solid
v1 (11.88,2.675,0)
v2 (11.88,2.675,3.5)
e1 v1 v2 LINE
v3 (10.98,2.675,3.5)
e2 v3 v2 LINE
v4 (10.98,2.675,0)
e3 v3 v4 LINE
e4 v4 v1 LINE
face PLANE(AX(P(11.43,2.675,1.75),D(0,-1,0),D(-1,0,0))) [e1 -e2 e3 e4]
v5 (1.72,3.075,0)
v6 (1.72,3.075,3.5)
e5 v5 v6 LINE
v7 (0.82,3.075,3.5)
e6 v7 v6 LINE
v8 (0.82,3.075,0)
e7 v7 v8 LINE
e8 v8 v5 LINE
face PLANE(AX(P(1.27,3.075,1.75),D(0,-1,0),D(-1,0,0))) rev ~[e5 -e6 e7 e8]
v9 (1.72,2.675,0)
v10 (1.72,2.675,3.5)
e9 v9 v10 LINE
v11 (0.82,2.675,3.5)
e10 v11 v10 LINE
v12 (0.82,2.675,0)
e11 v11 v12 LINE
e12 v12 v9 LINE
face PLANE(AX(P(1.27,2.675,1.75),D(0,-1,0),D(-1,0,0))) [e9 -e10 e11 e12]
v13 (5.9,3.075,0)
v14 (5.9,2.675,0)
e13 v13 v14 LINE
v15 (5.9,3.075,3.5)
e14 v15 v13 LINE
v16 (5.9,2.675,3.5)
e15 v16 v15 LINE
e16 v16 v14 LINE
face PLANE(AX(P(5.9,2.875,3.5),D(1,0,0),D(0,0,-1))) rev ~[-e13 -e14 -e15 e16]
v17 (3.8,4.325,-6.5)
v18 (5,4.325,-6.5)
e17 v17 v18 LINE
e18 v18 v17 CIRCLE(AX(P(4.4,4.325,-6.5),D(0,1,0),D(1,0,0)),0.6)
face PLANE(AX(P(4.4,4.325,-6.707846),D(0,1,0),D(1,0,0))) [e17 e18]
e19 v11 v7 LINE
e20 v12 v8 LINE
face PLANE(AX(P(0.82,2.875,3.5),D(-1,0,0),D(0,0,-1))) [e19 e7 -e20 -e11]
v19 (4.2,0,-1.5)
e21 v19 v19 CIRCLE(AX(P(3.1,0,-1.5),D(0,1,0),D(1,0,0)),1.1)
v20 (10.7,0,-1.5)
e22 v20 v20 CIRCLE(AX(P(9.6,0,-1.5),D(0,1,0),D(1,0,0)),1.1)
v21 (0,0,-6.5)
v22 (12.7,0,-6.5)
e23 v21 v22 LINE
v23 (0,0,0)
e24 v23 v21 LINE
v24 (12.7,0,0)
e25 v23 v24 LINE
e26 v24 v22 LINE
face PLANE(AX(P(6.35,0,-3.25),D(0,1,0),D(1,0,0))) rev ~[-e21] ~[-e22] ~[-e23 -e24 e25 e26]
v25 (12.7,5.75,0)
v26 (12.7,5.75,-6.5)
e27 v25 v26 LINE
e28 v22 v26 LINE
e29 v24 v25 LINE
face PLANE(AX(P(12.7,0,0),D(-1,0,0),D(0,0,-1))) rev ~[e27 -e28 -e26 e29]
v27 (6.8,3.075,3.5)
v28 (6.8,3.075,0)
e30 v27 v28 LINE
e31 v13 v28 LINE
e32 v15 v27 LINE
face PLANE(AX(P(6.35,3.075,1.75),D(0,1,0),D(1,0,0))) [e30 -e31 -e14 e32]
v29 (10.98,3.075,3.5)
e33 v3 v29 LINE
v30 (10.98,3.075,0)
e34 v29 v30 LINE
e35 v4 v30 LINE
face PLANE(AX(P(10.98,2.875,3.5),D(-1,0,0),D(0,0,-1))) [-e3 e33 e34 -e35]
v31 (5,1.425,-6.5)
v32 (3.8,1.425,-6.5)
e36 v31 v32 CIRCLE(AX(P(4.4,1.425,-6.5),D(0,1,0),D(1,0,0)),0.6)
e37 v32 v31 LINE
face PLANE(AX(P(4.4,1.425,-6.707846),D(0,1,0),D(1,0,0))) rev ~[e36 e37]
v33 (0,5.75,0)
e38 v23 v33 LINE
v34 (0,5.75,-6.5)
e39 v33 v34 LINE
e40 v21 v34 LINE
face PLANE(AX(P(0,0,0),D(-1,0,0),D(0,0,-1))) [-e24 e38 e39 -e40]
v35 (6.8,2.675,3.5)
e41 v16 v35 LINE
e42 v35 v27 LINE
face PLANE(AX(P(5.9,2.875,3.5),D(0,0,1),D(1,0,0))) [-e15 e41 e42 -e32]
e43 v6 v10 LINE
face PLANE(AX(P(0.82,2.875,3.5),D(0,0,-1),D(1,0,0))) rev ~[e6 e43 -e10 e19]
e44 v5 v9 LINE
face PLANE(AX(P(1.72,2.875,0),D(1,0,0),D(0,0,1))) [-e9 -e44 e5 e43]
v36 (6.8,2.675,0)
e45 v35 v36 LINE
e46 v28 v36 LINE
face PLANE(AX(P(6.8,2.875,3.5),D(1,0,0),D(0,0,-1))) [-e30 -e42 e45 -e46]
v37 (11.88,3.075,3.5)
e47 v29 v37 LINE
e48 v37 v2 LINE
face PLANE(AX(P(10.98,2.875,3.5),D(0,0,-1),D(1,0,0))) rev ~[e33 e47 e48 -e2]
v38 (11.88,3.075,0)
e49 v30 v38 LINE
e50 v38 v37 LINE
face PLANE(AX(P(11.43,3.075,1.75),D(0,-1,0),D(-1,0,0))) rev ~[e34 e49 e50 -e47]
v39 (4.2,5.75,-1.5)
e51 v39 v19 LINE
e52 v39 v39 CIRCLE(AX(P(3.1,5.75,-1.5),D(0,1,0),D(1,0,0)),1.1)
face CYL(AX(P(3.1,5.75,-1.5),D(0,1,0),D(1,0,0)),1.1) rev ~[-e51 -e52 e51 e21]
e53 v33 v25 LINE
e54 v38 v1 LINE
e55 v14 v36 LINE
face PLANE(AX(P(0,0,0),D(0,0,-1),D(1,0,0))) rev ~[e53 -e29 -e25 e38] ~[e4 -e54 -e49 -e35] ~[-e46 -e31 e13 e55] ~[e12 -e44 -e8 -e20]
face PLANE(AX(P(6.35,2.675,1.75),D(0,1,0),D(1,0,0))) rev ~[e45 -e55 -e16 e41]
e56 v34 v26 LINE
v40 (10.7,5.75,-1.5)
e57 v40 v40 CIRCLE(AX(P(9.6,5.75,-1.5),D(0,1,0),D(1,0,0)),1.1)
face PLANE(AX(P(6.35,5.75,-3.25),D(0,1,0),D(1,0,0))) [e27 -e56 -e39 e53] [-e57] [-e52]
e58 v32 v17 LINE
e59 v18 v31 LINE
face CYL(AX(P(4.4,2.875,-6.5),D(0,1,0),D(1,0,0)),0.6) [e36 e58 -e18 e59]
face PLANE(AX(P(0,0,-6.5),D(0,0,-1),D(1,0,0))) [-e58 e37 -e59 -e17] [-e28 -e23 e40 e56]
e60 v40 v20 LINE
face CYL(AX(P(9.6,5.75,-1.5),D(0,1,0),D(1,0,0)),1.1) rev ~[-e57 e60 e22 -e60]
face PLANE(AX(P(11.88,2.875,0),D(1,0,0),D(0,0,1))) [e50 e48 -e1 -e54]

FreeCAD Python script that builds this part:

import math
import FreeCAD as App
import Part
import Sketcher
from FreeCAD import Vector
Q = App.Units.Quantity


def add_polygon(sketch, points):
    """Adds a closed chain of lines whose ends are joined by coincident constraints."""
    first, n = sketch.GeometryCount, len(points)
    for a, b in zip(points, points[1:] + points[:1]):
        sketch.addGeometry(Part.LineSegment(App.Vector(*a, 0), App.Vector(*b, 0)), False)
    for i in range(n):
        sketch.addConstraint(Sketcher.Constraint("Coincident", first + i, 2, first + (i + 1) % n, 1))

doc = App.newDocument("Part")
params = doc.addObject("Spreadsheet::Sheet", "Params")
for row, (alias, value) in enumerate([
    ("sketch1_width", "12.7 mm"),
    ("sketch1_height", "6.5 mm"),
    ("pad1_length", "5.75 mm"),
    ("sketch2_diameter", "2.2 mm"),
    ("sketch3_width", "0.9 mm"),
    ("sketch3_height", "3.5 mm"),
    ("pad2_length", "0.2 mm"),
    ("pad2_length2", "0.2 mm"),
    ("sketch4_radius", "0.6 mm"),
    ("pad3_length", "1.45 mm"),
    ("pad3_length2", "1.45 mm"),
], start=1):
    params.set(f"A{row}", alias)
    params.set(f"B{row}", "=" + value)
    params.setAlias(f"B{row}", alias)

body = doc.addObject("PartDesign::Body", "Body")

sketch1 = body.newObject("Sketcher::SketchObject", "Sketch")
sketch1.AttachmentSupport = (doc.getObject("XZ_Plane"), [""])
sketch1.MapMode = "FlatFace"
add_polygon(sketch1, [(0, -6), (0, 0), (13, 0), (13, -6)])
sketch1.addConstraint(Sketcher.Constraint("Vertical", 0))
sketch1.addConstraint(Sketcher.Constraint("Horizontal", 1))
sketch1.addConstraint(Sketcher.Constraint("Vertical", 2))
sketch1.addConstraint(Sketcher.Constraint("Horizontal", 3))
sketch1.addConstraint(Sketcher.Constraint("Coincident", 0, 2, -1, 1))
sketch1.addConstraint(Sketcher.Constraint("DistanceX", 1, 1, 1, 2, Q("12.7 mm")))
sketch1.addConstraint(Sketcher.Constraint("DistanceY", 0, 1, 0, 2, Q("6.5 mm")))
sketch1.setExpression("Constraints[9]", "Params.sketch1_width")
sketch1.setExpression("Constraints[10]", "Params.sketch1_height")
pad1 = body.newObject("PartDesign::Pad", "Pad")
pad1.Profile = sketch1
pad1.setExpression("Length", "Params.pad1_length")
pad1.Reversed = True

sketch2 = body.newObject("Sketcher::SketchObject", "Sketch001")
sketch2.AttachmentSupport = (doc.getObject("XZ_Plane"), [""])
sketch2.MapMode = "FlatFace"
sketch2.AttachmentOffset = App.Placement(Vector(0, 0, -5.75), App.Rotation())
sketch2.addGeometry(Part.Circle(Vector(3.1, -1.5, 0), Vector(0, 0, 1), 1.1), False)
sketch2.addGeometry(Part.Circle(Vector(9.6, -1.5, 0), Vector(0, 0, 1), 1.1), False)
sketch2.addConstraint(Sketcher.Constraint("Equal", 0, 1))
sketch2.addConstraint(Sketcher.Constraint("Horizontal", 0, 3, 1, 3))
sketch2.addConstraint(Sketcher.Constraint("Diameter", 0, Q("2.2 mm")))
sketch2.addConstraint(Sketcher.Constraint("DistanceX", -1, 1, 0, 3, Q("3.1 mm")))
sketch2.addConstraint(Sketcher.Constraint("DistanceY", 0, 3, -1, 1, Q("1.5 mm")))
sketch2.addConstraint(Sketcher.Constraint("DistanceX", -1, 1, 1, 3, Q("9.6 mm")))
sketch2.setExpression("Constraints[2]", "Params.sketch2_diameter")
pocket1 = body.newObject("PartDesign::Pocket", "Pocket")
pocket1.Profile = sketch2
pocket1.Type = "ThroughAll"
pocket1.Reversed = True

sketch3 = body.newObject("Sketcher::SketchObject", "Sketch002")
sketch3.AttachmentSupport = (doc.getObject("XZ_Plane"), [""])
sketch3.MapMode = "FlatFace"
sketch3.AttachmentOffset = App.Placement(Vector(0, 0, -2.875), App.Rotation())
add_polygon(sketch3, [(5.9, 0), (5.9, 3.5), (6.8, 3.5), (6.8, 0)])
add_polygon(sketch3, [(11.9, 3.5), (11.9, 0), (11, 0), (11, 3.5)])
add_polygon(sketch3, [(1.7, 0), (0.8, 0), (0.8, 3.5), (1.7, 3.5)])
sketch3.addConstraint(Sketcher.Constraint("Vertical", 0))
sketch3.addConstraint(Sketcher.Constraint("Horizontal", 1))
sketch3.addConstraint(Sketcher.Constraint("Vertical", 2))
sketch3.addConstraint(Sketcher.Constraint("Horizontal", 3))
sketch3.addConstraint(Sketcher.Constraint("Vertical", 4))
sketch3.addConstraint(Sketcher.Constraint("Horizontal", 5))
sketch3.addConstraint(Sketcher.Constraint("Vertical", 6))
sketch3.addConstraint(Sketcher.Constraint("Horizontal", 7))
sketch3.addConstraint(Sketcher.Constraint("Horizontal", 8))
sketch3.addConstraint(Sketcher.Constraint("Vertical", 9))
sketch3.addConstraint(Sketcher.Constraint("Horizontal", 10))
sketch3.addConstraint(Sketcher.Constraint("Vertical", 11))
sketch3.addConstraint(Sketcher.Constraint("PointOnObject", 2, 2, -1))
sketch3.addConstraint(Sketcher.Constraint("PointOnObject", 4, 2, -1))
sketch3.addConstraint(Sketcher.Constraint("PointOnObject", 8, 2, -1))
sketch3.addConstraint(Sketcher.Constraint("Horizontal", 1, 2, 6, 2))
sketch3.addConstraint(Sketcher.Constraint("Horizontal", 7, 2, 9, 2))
sketch3.addConstraint(Sketcher.Constraint("Equal", 3, 5))
sketch3.addConstraint(Sketcher.Constraint("Equal", 7, 8))
sketch3.addConstraint(Sketcher.Constraint("DistanceX", 1, 1, 1, 2, Q("0.9 mm")))
sketch3.addConstraint(Sketcher.Constraint("DistanceY", 0, 1, 0, 2, Q("3.5 mm")))
sketch3.addConstraint(Sketcher.Constraint("DistanceX", -1, 1, 0, 2, Q("5.9 mm")))
sketch3.addConstraint(Sketcher.Constraint("DistanceX", -1, 1, 4, 2, Q("11.88 mm")))
sketch3.addConstraint(Sketcher.Constraint("DistanceX", -1, 1, 8, 2, Q("0.82 mm")))
sketch3.setExpression("Constraints[31]", "Params.sketch3_width")
sketch3.setExpression("Constraints[32]", "Params.sketch3_height")
pad2 = body.newObject("PartDesign::Pad", "Pad001")
pad2.Profile = sketch3
pad2.Type = "TwoLengths"
pad2.setExpression("Length", "Params.pad2_length")
pad2.setExpression("Length2", "Params.pad2_length2")
pad2.Reversed = True

sketch4 = body.newObject("Sketcher::SketchObject", "Sketch003")
sketch4.AttachmentSupport = (doc.getObject("XZ_Plane"), [""])
sketch4.MapMode = "FlatFace"
sketch4.AttachmentOffset = App.Placement(Vector(0, 0, -2.875), App.Rotation())
sketch4.addGeometry(Part.LineSegment(Vector(3.8, -6.5, 0), Vector(5, -6.5, 0)), False)
sketch4.addGeometry(Part.ArcOfCircle(Part.Circle(Vector(4.4, -6.5, 0), Vector(0, 0, 1), 0.6), math.radians(180), math.radians(360)), False)
sketch4.addConstraint(Sketcher.Constraint("Coincident", 0, 1, 1, 1))
sketch4.addConstraint(Sketcher.Constraint("Coincident", 1, 2, 0, 2))
sketch4.addConstraint(Sketcher.Constraint("Horizontal", 0))
sketch4.addConstraint(Sketcher.Constraint("Horizontal", 1, 3, 0, 1))
sketch4.addConstraint(Sketcher.Constraint("Radius", 1, Q("0.6 mm")))
sketch4.addConstraint(Sketcher.Constraint("DistanceX", -1, 1, 1, 2, Q("5 mm")))
sketch4.addConstraint(Sketcher.Constraint("DistanceY", 1, 3, -1, 1, Q("6.5 mm")))
sketch4.setExpression("Constraints[4]", "Params.sketch4_radius")
pad3 = body.newObject("PartDesign::Pad", "Pad002")
pad3.Profile = sketch4
pad3.Type = "TwoLengths"
pad3.setExpression("Length", "Params.pad3_length")
pad3.setExpression("Length2", "Params.pad3_length2")
pad3.Reversed = True

doc.recompute()
